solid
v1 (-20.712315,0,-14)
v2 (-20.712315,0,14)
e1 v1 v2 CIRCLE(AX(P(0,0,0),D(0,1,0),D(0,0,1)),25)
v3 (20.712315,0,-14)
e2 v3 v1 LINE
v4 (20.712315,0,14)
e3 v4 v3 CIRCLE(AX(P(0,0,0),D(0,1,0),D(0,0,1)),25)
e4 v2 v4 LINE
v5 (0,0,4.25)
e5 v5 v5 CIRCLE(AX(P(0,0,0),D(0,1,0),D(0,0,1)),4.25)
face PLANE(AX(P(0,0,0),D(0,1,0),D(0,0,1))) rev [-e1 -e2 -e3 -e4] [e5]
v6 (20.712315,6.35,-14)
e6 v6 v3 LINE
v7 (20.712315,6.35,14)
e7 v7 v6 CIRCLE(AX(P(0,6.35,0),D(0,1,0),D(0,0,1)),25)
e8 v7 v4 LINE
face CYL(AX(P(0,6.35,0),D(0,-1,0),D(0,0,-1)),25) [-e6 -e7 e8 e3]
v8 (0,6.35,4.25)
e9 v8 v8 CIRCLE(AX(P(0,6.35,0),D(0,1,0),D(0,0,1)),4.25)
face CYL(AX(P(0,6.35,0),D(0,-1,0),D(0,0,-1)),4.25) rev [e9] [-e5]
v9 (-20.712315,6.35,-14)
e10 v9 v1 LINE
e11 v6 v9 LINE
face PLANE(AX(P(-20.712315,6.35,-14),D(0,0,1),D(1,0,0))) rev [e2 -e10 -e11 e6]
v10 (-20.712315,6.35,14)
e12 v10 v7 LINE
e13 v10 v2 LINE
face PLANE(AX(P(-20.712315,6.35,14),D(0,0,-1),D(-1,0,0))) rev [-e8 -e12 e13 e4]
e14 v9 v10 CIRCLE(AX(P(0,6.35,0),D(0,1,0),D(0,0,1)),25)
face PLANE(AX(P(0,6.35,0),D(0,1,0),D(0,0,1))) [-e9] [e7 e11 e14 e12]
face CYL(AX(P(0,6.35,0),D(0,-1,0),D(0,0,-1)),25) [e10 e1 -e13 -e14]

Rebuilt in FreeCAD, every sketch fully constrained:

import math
import FreeCAD as App
import Part
import Sketcher

doc = App.newDocument("Part")
body = doc.addObject("PartDesign::Body", "Body")

# Sketch on XZ plane
sketch1 = body.newObject("Sketcher::SketchObject", "Sketch")
sketch1.AttachmentSupport = (doc.getObject("XZ_Plane"), [""])
sketch1.MapMode = "FlatFace"
sketch1.addGeometry(Part.LineSegment(App.Vector(20.7, -14, 0), App.Vector(-20.7, -14, 0)), False)
sketch1.addGeometry(Part.ArcOfCircle(Part.Circle(App.Vector(0, 0, 0), App.Vector(0, 0, 1), 25), math.radians(146), math.radians(214)), False)
sketch1.addGeometry(Part.LineSegment(App.Vector(-20.7, 14, 0), App.Vector(20.7, 14, 0)), False)
sketch1.addGeometry(Part.ArcOfCircle(Part.Circle(App.Vector(0, 0, 0), App.Vector(0, 0, 1), 25), math.radians(-34), math.radians(34)), False)
sketch1.addGeometry(Part.Circle(App.Vector(0, 0, 0), App.Vector(0, 0, 1), 4.2), False)
sketch1.addConstraint(Sketcher.Constraint("Coincident", 0, 2, 1, 2))
sketch1.addConstraint(Sketcher.Constraint("Coincident", 1, 1, 2, 1))
sketch1.addConstraint(Sketcher.Constraint("Coincident", 2, 2, 3, 2))
sketch1.addConstraint(Sketcher.Constraint("Coincident", 3, 1, 0, 1))
sketch1.addConstraint(Sketcher.Constraint("Horizontal", 0))
sketch1.addConstraint(Sketcher.Constraint("Horizontal", 2))
sketch1.addConstraint(Sketcher.Constraint("Coincident", 1, 3, -1, 1))
sketch1.addConstraint(Sketcher.Constraint("Coincident", 3, 3, -1, 1))
sketch1.addConstraint(Sketcher.Constraint("Coincident", 4, 3, -1, 1))
sketch1.addConstraint(Sketcher.Constraint("Equal", 1, 3))
sketch1.addConstraint(Sketcher.Constraint("Vertical", 0, 2, 1, 1))
sketch1.addConstraint(Sketcher.Constraint("Radius", 1, 25.0))
sketch1.addConstraint(Sketcher.Constraint("Diameter", 4, 8.5))
sketch1.addConstraint(Sketcher.Constraint("DistanceY", 0, 2, -1, 1, 14.0))
pad1 = body.newObject("PartDesign::Pad", "Pad")
pad1.Profile = sketch1
pad1.Length = 6.35
pad1.Reversed = True

doc.recompute()
